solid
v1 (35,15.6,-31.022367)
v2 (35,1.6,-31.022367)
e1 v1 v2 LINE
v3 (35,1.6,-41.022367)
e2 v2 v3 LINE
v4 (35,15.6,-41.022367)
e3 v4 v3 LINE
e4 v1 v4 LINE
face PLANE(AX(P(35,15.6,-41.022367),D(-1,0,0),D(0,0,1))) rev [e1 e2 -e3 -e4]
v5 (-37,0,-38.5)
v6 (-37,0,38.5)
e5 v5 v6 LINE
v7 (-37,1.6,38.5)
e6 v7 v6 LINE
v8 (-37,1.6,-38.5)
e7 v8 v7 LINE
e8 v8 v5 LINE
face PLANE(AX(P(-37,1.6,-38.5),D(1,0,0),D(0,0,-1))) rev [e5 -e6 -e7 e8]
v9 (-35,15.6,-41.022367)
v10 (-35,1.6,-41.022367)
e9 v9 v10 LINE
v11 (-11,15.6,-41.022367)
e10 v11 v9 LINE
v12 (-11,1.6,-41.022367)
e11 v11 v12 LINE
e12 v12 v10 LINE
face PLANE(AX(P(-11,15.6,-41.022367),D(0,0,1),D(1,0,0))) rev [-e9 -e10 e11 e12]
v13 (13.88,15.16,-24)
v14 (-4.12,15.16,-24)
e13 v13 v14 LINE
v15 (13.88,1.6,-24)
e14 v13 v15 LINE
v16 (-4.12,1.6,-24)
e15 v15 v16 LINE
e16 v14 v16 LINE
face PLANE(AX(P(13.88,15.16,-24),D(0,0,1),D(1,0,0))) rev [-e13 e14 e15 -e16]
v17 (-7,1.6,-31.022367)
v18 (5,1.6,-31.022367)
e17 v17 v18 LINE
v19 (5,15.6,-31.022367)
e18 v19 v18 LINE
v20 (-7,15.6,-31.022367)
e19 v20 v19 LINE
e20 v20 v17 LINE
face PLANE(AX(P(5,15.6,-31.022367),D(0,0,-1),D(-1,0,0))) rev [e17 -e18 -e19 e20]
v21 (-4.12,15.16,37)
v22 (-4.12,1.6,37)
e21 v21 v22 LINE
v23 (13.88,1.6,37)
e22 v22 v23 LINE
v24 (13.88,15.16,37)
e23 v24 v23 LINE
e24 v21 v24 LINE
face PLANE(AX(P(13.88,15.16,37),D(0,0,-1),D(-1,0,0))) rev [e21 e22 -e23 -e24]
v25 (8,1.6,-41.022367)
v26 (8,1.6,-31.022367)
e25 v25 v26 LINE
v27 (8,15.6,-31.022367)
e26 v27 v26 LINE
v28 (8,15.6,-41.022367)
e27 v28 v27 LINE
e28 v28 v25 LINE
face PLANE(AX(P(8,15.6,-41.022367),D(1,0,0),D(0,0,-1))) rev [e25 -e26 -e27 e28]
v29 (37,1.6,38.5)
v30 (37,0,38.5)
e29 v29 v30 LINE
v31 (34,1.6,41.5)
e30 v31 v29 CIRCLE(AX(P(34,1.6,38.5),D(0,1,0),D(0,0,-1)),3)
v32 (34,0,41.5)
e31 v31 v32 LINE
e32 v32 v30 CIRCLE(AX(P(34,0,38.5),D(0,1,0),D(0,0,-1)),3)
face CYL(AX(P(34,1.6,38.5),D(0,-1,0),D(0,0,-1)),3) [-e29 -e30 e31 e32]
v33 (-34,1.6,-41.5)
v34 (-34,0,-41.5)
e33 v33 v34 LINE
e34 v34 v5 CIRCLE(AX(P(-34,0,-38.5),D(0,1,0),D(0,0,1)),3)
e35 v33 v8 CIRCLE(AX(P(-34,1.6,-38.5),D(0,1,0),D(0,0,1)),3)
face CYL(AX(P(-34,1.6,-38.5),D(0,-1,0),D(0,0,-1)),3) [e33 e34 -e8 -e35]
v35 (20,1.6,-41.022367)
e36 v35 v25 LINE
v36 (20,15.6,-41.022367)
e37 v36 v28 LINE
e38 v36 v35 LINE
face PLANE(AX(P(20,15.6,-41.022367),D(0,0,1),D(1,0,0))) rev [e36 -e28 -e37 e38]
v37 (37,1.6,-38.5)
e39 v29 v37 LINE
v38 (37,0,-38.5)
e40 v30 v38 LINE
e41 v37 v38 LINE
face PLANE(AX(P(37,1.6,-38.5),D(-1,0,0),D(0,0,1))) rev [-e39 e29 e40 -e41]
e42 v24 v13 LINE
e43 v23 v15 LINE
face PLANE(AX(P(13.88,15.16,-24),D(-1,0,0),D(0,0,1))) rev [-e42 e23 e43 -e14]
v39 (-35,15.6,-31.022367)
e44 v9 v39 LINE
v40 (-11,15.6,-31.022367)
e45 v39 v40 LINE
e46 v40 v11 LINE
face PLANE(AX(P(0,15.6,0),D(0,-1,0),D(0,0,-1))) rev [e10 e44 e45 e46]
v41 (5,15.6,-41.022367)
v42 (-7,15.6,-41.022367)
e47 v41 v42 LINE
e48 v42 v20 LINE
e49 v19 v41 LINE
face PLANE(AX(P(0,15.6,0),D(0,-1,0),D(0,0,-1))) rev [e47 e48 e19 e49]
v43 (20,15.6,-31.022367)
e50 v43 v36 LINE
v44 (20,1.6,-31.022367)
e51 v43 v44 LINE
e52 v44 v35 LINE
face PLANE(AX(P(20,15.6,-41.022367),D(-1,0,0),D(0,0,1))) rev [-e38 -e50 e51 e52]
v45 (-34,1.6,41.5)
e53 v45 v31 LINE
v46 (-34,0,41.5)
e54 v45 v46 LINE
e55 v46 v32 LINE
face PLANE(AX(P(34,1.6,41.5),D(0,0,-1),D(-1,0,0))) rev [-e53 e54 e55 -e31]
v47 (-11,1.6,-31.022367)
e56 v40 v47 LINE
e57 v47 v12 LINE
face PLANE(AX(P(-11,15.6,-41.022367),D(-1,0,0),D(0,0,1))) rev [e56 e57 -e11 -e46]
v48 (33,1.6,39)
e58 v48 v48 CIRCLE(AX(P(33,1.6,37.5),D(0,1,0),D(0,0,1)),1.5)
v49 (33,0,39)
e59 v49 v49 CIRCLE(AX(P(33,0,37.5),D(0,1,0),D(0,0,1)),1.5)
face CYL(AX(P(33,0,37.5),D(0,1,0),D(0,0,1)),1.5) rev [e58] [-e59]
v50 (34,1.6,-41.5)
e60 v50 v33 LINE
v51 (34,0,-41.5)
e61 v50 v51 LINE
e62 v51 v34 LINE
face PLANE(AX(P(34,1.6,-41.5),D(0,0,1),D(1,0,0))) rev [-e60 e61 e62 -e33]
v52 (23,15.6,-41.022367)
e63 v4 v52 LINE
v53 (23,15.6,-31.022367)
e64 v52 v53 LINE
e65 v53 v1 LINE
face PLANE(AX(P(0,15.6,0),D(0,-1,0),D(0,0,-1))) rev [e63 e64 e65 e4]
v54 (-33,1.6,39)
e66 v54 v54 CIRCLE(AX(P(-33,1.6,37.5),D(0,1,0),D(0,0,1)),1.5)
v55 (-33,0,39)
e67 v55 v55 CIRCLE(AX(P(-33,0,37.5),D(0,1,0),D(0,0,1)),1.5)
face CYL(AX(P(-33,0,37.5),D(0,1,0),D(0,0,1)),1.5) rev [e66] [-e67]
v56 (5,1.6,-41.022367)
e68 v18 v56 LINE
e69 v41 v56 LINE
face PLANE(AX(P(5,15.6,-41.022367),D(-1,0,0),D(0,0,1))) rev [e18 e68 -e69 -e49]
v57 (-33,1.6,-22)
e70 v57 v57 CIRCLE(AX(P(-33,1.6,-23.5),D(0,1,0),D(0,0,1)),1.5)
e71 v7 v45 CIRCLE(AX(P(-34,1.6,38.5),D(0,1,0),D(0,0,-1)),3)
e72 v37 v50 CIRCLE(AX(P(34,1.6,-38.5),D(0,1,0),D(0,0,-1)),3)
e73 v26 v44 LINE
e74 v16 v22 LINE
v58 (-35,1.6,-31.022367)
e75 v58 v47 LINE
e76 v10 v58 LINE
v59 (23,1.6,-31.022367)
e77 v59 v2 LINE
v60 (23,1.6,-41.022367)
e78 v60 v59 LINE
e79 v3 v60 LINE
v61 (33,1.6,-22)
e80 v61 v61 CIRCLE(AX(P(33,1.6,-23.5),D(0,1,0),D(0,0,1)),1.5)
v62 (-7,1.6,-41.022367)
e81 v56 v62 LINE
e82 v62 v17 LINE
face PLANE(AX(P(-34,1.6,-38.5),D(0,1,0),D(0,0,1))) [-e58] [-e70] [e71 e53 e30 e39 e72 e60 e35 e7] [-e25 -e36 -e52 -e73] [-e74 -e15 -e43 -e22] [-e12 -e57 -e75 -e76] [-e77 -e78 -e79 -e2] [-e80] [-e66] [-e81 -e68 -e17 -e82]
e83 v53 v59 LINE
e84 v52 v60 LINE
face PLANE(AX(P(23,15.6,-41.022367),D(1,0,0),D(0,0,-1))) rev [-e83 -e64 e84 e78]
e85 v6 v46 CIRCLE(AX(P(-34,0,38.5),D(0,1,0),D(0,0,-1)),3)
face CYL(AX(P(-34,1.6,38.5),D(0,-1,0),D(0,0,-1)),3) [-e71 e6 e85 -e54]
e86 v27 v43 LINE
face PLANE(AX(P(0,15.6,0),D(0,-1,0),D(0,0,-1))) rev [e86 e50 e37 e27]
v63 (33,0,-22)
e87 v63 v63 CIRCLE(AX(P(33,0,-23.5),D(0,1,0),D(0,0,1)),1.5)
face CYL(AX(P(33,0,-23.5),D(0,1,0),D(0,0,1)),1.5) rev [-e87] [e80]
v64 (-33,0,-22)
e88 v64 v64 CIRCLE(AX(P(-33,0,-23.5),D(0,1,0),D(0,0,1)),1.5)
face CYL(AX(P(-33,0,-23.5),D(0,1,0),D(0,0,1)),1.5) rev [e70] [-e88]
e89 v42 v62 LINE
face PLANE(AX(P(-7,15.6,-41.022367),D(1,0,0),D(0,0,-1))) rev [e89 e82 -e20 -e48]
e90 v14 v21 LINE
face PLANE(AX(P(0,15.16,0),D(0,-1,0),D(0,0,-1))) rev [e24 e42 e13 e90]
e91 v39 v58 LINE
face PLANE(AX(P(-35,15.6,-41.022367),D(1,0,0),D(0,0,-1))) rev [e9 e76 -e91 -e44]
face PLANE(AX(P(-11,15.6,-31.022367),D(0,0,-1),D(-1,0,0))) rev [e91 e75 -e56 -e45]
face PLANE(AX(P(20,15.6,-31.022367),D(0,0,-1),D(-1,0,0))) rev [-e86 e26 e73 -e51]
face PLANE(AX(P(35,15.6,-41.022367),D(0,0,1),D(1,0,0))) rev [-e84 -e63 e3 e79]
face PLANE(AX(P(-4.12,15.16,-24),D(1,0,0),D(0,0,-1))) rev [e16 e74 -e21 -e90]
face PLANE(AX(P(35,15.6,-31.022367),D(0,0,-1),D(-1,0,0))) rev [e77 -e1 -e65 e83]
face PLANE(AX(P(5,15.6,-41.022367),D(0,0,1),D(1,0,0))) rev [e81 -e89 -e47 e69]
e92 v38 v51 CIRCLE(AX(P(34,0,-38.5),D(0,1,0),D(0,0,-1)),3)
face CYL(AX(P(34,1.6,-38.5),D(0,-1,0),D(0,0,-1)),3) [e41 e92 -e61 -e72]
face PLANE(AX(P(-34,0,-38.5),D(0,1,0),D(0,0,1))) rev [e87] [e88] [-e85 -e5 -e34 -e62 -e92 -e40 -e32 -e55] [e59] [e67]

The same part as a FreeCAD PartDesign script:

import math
import FreeCAD as App
import Part
import Sketcher

doc = App.newDocument("Part")
body = doc.addObject("PartDesign::Body", "Body")

sketch1 = body.newObject("Sketcher::SketchObject", "Sketch")
sketch1.AttachmentSupport = (doc.getObject("XZ_Plane"), [""])
sketch1.MapMode = "FlatFace"
sketch1.addGeometry([
    Part.LineSegment(App.Vector(34, -41.5, 0), App.Vector(-34, -41.5, 0)),
    Part.ArcOfCircle(Part.Circle(App.Vector(-34, -38.5, 0), App.Vector(0, 0, 1), 3), math.radians(180), math.radians(270)),
    Part.LineSegment(App.Vector(-37, -38.5, 0), App.Vector(-37, 38.5, 0)),
    Part.ArcOfCircle(Part.Circle(App.Vector(-34, 38.5, 0), App.Vector(0, 0, 1), 3), math.radians(90), math.radians(180)),
    Part.LineSegment(App.Vector(-34, 41.5, 0), App.Vector(34, 41.5, 0)),
    Part.ArcOfCircle(Part.Circle(App.Vector(34, 38.5, 0), App.Vector(0, 0, 1), 3), math.radians(0), math.radians(90)),
    Part.LineSegment(App.Vector(37, 38.5, 0), App.Vector(37, -38.5, 0)),
    Part.ArcOfCircle(Part.Circle(App.Vector(34, -38.5, 0), App.Vector(0, 0, 1), 3), math.radians(-90), math.radians(0)),
], False)
sketch1.addConstraint([
    Sketcher.Constraint("Tangent", 0, 2, 1, 2),
    Sketcher.Constraint("Tangent", 1, 1, 2, 1),
    Sketcher.Constraint("Tangent", 2, 2, 3, 2),
    Sketcher.Constraint("Tangent", 3, 1, 4, 1),
    Sketcher.Constraint("Tangent", 4, 2, 5, 2),
    Sketcher.Constraint("Tangent", 5, 1, 6, 1),
    Sketcher.Constraint("Tangent", 6, 2, 7, 2),
    Sketcher.Constraint("Tangent", 7, 1, 0, 1),
    Sketcher.Constraint("Horizontal", 0),
    Sketcher.Constraint("Vertical", 2),
    Sketcher.Constraint("Horizontal", 4),
    Sketcher.Constraint("Vertical", 6),
    Sketcher.Constraint("Equal", 1, 3),
    Sketcher.Constraint("Equal", 3, 5),
    Sketcher.Constraint("Equal", 5, 7),
    Sketcher.Constraint("Symmetric", 1, 3, 5, 3, -1, 1),
    Sketcher.Constraint("Radius", 1, 3.0),
    Sketcher.Constraint("DistanceX", 0, 2, 0, 1, 68.0),
    Sketcher.Constraint("DistanceY", 2, 1, 2, 2, 77.0),
])
pad1 = body.newObject("PartDesign::Pad", "Pad")
pad1.Profile = sketch1
pad1.Length = 1.6
pad1.Reversed = True

sketch2 = body.newObject("Sketcher::SketchObject", "Sketch001")
sketch2.AttachmentSupport = (doc.getObject("XZ_Plane"), [""])
sketch2.MapMode = "FlatFace"
sketch2.AttachmentOffset = App.Placement(App.Vector(0, 0, -1.6), App.Rotation())
sketch2.addGeometry([
    Part.Circle(App.Vector(-33, -23.5, 0), App.Vector(0, 0, 1), 1.5),
    Part.Circle(App.Vector(33, -23.5, 0), App.Vector(0, 0, 1), 1.5),
    Part.Circle(App.Vector(-33, 37.5, 0), App.Vector(0, 0, 1), 1.5),
    Part.Circle(App.Vector(33, 37.5, 0), App.Vector(0, 0, 1), 1.5),
], False)
sketch2.addConstraint([
    Sketcher.Constraint("Equal", 0, 1),
    Sketcher.Constraint("Equal", 1, 2),
    Sketcher.Constraint("Equal", 2, 3),
    Sketcher.Constraint("Symmetric", 0, 3, 1, 3, -2),
    Sketcher.Constraint("Symmetric", 2, 3, 3, 3, -2),
    Sketcher.Constraint("Vertical", 0, 3, 2, 3),
    Sketcher.Constraint("Diameter", 0, 3.0),
    Sketcher.Constraint("DistanceX", 0, 3, -1, 1, 33.0),
    Sketcher.Constraint("DistanceY", 0, 3, 2, 3, 61.0),
    Sketcher.Constraint("DistanceY", 0, 3, -1, 1, 23.5),
])
pocket1 = body.newObject("PartDesign::Pocket", "Pocket")
pocket1.Profile = sketch2
pocket1.Type = "ThroughAll"
pocket1.Midplane = True

sketch3 = body.newObject("Sketcher::SketchObject", "Sketch002")
sketch3.AttachmentSupport = (doc.getObject("XZ_Plane"), [""])
sketch3.MapMode = "FlatFace"
sketch3.AttachmentOffset = App.Placement(App.Vector(0, 0, -1.6), App.Rotation())
sketch3.addGeometry([
    Part.LineSegment(App.Vector(-35, -41, 0), App.Vector(-35, -31, 0)),
    Part.LineSegment(App.Vector(-35, -31, 0), App.Vector(-11, -31, 0)),
    Part.LineSegment(App.Vector(-11, -31, 0), App.Vector(-11, -41, 0)),
    Part.LineSegment(App.Vector(-11, -41, 0), App.Vector(-35, -41, 0)),
    Part.LineSegment(App.Vector(-7, -41, 0), App.Vector(-7, -31, 0)),
    Part.LineSegment(App.Vector(-7, -31, 0), App.Vector(5, -31, 0)),
    Part.LineSegment(App.Vector(5, -31, 0), App.Vector(5, -41, 0)),
    Part.LineSegment(App.Vector(5, -41, 0), App.Vector(-7, -41, 0)),
    Part.LineSegment(App.Vector(8, -41, 0), App.Vector(8, -31, 0)),
    Part.LineSegment(App.Vector(8, -31, 0), App.Vector(20, -31, 0)),
    Part.LineSegment(App.Vector(20, -31, 0), App.Vector(20, -41, 0)),
    Part.LineSegment(App.Vector(20, -41, 0), App.Vector(8, -41, 0)),
    Part.LineSegment(App.Vector(23, -41, 0), App.Vector(23, -31, 0)),
    Part.LineSegment(App.Vector(23, -31, 0), App.Vector(35, -31, 0)),
    Part.LineSegment(App.Vector(35, -31, 0), App.Vector(35, -41, 0)),
    Part.LineSegment(App.Vector(35, -41, 0), App.Vector(23, -41, 0)),
], False)
sketch3.addConstraint([
    Sketcher.Constraint("Coincident", 0, 2, 1, 1),
    Sketcher.Constraint("Coincident", 1, 2, 2, 1),
    Sketcher.Constraint("Coincident", 2, 2, 3, 1),
    Sketcher.Constraint("Coincident", 3, 2, 0, 1),
    Sketcher.Constraint("Coincident", 4, 2, 5, 1),
    Sketcher.Constraint("Coincident", 5, 2, 6, 1),
    Sketcher.Constraint("Coincident", 6, 2, 7, 1),
    Sketcher.Constraint("Coincident", 7, 2, 4, 1),
    Sketcher.Constraint("Coincident", 8, 2, 9, 1),
    Sketcher.Constraint("Coincident", 9, 2, 10, 1),
    Sketcher.Constraint("Coincident", 10, 2, 11, 1),
    Sketcher.Constraint("Coincident", 11, 2, 8, 1),
    Sketcher.Constraint("Coincident", 12, 2, 13, 1),
    Sketcher.Constraint("Coincident", 13, 2, 14, 1),
    Sketcher.Constraint("Coincident", 14, 2, 15, 1),
    Sketcher.Constraint("Coincident", 15, 2, 12, 1),
    Sketcher.Constraint("Vertical", 0),
    Sketcher.Constraint("Horizontal", 1),
    Sketcher.Constraint("Vertical", 2),
    Sketcher.Constraint("Horizontal", 3),
    Sketcher.Constraint("Vertical", 4),
    Sketcher.Constraint("Horizontal", 5),
    Sketcher.Constraint("Vertical", 6),
    Sketcher.Constraint("Horizontal", 7),
    Sketcher.Constraint("Vertical", 8),
    Sketcher.Constraint("Horizontal", 9),
    Sketcher.Constraint("Vertical", 10),
    Sketcher.Constraint("Horizontal", 11),
    Sketcher.Constraint("Vertical", 12),
    Sketcher.Constraint("Horizontal", 13),
    Sketcher.Constraint("Vertical", 14),
    Sketcher.Constraint("Horizontal", 15),
    Sketcher.Constraint("Symmetric", 0, 2, 13, 2, -2),
    Sketcher.Constraint("Horizontal", 1, 2, 4, 2),
    Sketcher.Constraint("Horizontal", 3, 2, 6, 2),
    Sketcher.Constraint("Horizontal", 5, 2, 8, 2),
    Sketcher.Constraint("Horizontal", 7, 2, 10, 2),
    Sketcher.Constraint("Horizontal", 11, 2, 14, 2),
    Sketcher.Constraint("Equal", 7, 9),
    Sketcher.Constraint("Equal", 11, 13),
    Sketcher.Constraint("DistanceX", 1, 1, 1, 2, 24.0),
    Sketcher.Constraint("DistanceX", 5, 1, 5, 2, 12.0),
    Sketcher.Constraint("DistanceY", 0, 1, 0, 2, 10.0),
    Sketcher.Constraint("DistanceX", 0, 2, -1, 1, 35.0),
    Sketcher.Constraint("DistanceX", 4, 2, -1, 1, 7.0),
    Sketcher.Constraint("DistanceX", -1, 1, 8, 2, 8.0),
    Sketcher.Constraint("DistanceY", 0, 2, -1, 1, 31.022367),
])
pad2 = body.newObject("PartDesign::Pad", "Pad001")
pad2.Profile = sketch3
pad2.Length = 14
pad2.Reversed = True

sketch4 = body.newObject("Sketcher::SketchObject", "Sketch003")
sketch4.AttachmentSupport = (doc.getObject("XZ_Plane"), [""])
sketch4.MapMode = "FlatFace"
sketch4.AttachmentOffset = App.Placement(App.Vector(0, 0, -1.6), App.Rotation())
sketch4.addGeometry([
    Part.LineSegment(App.Vector(-4, -24, 0), App.Vector(-4, 37, 0)),
    Part.LineSegment(App.Vector(-4, 37, 0), App.Vector(14, 37, 0)),
    Part.LineSegment(App.Vector(14, 37, 0), App.Vector(14, -24, 0)),
    Part.LineSegment(App.Vector(14, -24, 0), App.Vector(-4, -24, 0)),
], False)
sketch4.addConstraint([
    Sketcher.Constraint("Coincident", 0, 2, 1, 1),
    Sketcher.Constraint("Coincident", 1, 2, 2, 1),
    Sketcher.Constraint("Coincident", 2, 2, 3, 1),
    Sketcher.Constraint("Coincident", 3, 2, 0, 1),
    Sketcher.Constraint("Vertical", 0),
    Sketcher.Constraint("Horizontal", 1),
    Sketcher.Constraint("Vertical", 2),
    Sketcher.Constraint("Horizontal", 3),
    Sketcher.Constraint("DistanceX", 1, 1, 1, 2, 18.0),
    Sketcher.Constraint("DistanceY", 0, 1, 0, 2, 61.0),
    Sketcher.Constraint("DistanceY", -1, 1, 0, 2, 37.0),
    Sketcher.Constraint("DistanceX", 0, 2, -1, 1, 4.12),
])
pad3 = body.newObject("PartDesign::Pad", "Pad002")
pad3.Profile = sketch4
pad3.Length = 13.56
pad3.Reversed = True

doc.recompute()
